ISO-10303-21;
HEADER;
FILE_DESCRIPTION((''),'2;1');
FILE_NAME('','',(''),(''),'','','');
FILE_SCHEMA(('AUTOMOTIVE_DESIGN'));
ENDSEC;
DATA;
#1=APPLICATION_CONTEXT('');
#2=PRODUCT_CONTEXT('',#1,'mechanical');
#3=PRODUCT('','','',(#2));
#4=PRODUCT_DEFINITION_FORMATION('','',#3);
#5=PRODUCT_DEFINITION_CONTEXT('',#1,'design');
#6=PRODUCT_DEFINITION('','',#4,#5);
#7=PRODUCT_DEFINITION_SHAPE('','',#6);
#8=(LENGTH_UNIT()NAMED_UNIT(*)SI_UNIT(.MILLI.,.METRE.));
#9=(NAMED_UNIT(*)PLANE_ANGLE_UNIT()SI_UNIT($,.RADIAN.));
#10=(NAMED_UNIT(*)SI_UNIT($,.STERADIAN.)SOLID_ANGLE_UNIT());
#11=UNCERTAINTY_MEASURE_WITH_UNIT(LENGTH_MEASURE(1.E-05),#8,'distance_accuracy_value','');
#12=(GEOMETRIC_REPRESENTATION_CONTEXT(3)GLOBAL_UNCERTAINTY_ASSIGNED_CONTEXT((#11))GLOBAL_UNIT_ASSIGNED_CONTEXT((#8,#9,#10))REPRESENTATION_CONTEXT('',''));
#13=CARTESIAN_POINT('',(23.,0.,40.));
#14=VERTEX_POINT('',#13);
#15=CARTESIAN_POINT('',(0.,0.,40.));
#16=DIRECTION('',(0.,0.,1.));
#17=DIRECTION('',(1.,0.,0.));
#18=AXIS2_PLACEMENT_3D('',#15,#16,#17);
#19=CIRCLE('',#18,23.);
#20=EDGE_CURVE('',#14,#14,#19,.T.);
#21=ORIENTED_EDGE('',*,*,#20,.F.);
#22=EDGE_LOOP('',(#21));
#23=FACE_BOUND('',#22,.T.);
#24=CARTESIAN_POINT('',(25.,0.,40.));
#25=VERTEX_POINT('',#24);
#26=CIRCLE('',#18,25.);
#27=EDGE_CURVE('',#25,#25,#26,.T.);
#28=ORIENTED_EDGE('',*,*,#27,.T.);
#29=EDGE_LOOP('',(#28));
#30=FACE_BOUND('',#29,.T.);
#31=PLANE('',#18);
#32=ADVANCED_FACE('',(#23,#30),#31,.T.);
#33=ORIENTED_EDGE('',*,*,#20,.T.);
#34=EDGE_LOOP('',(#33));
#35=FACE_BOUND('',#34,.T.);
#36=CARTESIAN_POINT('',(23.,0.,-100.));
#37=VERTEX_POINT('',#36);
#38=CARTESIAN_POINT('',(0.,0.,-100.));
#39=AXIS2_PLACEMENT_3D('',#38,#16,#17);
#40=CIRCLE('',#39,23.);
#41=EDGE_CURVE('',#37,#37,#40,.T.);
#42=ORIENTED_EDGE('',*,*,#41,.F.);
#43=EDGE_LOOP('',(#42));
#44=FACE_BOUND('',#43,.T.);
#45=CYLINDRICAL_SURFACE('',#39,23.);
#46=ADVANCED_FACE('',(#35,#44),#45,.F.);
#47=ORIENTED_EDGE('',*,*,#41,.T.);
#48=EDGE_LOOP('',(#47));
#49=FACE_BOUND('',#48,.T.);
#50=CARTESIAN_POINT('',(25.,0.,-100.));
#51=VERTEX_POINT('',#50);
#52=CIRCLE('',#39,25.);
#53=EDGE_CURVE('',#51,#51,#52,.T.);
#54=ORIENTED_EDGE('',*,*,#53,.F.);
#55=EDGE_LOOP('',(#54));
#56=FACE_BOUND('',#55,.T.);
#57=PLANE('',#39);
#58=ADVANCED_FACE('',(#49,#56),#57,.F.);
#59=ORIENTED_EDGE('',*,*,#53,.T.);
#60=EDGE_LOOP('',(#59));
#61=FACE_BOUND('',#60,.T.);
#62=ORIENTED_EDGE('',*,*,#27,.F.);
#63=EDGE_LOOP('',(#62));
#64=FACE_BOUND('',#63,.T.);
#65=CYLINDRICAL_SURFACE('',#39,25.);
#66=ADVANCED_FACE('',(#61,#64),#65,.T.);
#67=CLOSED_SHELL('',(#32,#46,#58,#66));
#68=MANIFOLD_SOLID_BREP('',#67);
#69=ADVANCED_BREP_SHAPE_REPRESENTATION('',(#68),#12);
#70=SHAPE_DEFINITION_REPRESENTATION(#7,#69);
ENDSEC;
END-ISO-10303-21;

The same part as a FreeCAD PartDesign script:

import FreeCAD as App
import Part
import Sketcher
from FreeCAD import Vector

doc = App.newDocument("Part")
body = doc.addObject("PartDesign::Body", "Body")

sketch1 = body.newObject("Sketcher::SketchObject", "Sketch")
sketch1.AttachmentSupport = (doc.getObject("XY_Plane"), [""])
sketch1.MapMode = "FlatFace"
sketch1.addGeometry(Part.Circle(Vector(0, 0, 0), Vector(0, 0, 1), 25), False)
sketch1.addGeometry(Part.Circle(Vector(0, 0, 0), Vector(0, 0, 1), 23), False)
sketch1.addConstraint(Sketcher.Constraint("Coincident", 0, 3, -1, 1))
sketch1.addConstraint(Sketcher.Constraint("Coincident", 1, 3, -1, 1))
sketch1.addConstraint(Sketcher.Constraint("Diameter", 0, 50.0))
sketch1.addConstraint(Sketcher.Constraint("Diameter", 1, 46.0))
pad1 = body.newObject("PartDesign::Pad", "Pad")
pad1.Profile = sketch1
pad1.Type = "TwoLengths"
pad1.Length = 40
pad1.Length2 = 100

doc.recompute()
